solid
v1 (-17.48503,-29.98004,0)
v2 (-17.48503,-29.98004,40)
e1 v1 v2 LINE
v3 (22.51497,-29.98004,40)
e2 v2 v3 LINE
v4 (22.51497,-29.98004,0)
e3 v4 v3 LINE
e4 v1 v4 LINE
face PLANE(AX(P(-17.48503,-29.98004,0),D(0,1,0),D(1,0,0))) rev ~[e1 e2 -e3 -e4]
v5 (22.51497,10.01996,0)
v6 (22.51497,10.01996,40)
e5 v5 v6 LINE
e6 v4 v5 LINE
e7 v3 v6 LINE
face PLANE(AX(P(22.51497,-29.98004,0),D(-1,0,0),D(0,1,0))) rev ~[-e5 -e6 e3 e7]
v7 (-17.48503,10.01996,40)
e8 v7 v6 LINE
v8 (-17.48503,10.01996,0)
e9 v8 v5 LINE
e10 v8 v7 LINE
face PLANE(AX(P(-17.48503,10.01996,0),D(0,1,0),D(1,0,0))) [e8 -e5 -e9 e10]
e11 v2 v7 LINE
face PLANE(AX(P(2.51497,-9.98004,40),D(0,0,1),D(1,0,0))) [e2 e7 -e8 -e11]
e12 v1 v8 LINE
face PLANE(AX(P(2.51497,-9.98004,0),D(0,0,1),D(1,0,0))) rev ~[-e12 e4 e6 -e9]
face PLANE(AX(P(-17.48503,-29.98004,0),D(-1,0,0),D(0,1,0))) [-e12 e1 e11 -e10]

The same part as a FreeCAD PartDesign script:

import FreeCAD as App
import Part
import Sketcher

V = App.Vector
Q = App.Units.Quantity


def add_polygon(sketch, points):
    """Adds a closed chain of lines whose ends are joined by coincident constraints."""
    first, n = sketch.GeometryCount, len(points)
    for a, b in zip(points, points[1:] + points[:1]):
        sketch.addGeometry(Part.LineSegment(App.Vector(*a, 0), App.Vector(*b, 0)), False)
    for i in range(n):
        sketch.addConstraint(Sketcher.Constraint("Coincident", first + i, 2, first + (i + 1) % n, 1))

doc = App.newDocument("Part")
body = doc.addObject("PartDesign::Body", "Body")

sketch1 = body.newObject("Sketcher::SketchObject", "Sketch")
sketch1.AttachmentSupport = (doc.getObject("XY_Plane"), [""])
sketch1.MapMode = "FlatFace"
add_polygon(sketch1, [(-17, 10), (-17, -30), (23, -30), (23, 10)])
sketch1.addConstraint([
    Sketcher.Constraint("Vertical", 0),
    Sketcher.Constraint("Horizontal", 1),
    Sketcher.Constraint("Vertical", 2),
    Sketcher.Constraint("Horizontal", 3),
    Sketcher.Constraint("Equal", 3, 0),
    Sketcher.Constraint("DistanceX", 1, 1, 1, 2, Q("40 mm")),
    Sketcher.Constraint("DistanceX", 0, 2, -1, 1, Q("17.48503 mm")),
    Sketcher.Constraint("DistanceY", 0, 2, -1, 1, Q("29.98004 mm")),
])
pad1 = body.newObject("PartDesign::Pad", "Pad")
pad1.Profile = sketch1
pad1.Length = 40

doc.recompute()
